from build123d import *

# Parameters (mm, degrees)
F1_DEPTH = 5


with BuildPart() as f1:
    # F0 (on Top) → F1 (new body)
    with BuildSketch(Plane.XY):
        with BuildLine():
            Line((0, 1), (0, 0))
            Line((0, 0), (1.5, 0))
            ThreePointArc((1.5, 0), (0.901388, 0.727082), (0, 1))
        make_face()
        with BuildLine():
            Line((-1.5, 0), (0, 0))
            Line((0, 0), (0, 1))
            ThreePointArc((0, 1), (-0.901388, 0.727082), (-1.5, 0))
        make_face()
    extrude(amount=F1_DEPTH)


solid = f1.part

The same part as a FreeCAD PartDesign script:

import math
import FreeCAD as App
import Part
import Sketcher
from FreeCAD import Vector
Q = App.Units.Quantity

doc = App.newDocument("Part")
body = doc.addObject("PartDesign::Body", "Body")

sketch1 = body.newObject("Sketcher::SketchObject", "Sketch")
sketch1.AttachmentSupport = (doc.getObject("XY_Plane"), [""])
sketch1.MapMode = "FlatFace"
sketch1.addGeometry(Part.ArcOfCircle(Part.Circle(Vector(0, -0.6, 0), Vector(0, 0, 1), 1.6), math.radians(23), math.radians(90)), False)
sketch1.addGeometry(Part.ArcOfCircle(Part.Circle(Vector(0, -0.6, 0), Vector(0, 0, 1), 1.6), math.radians(90), math.radians(157)), False)
sketch1.addGeometry(Part.LineSegment(Vector(-1.5, 0, 0), Vector(1.5, 0, 0)), False)
sketch1.addConstraint(Sketcher.Constraint("Tangent", 0, 2, 1, 1))
sketch1.addConstraint(Sketcher.Constraint("Coincident", 1, 2, 2, 1))
sketch1.addConstraint(Sketcher.Constraint("Coincident", 2, 2, 0, 1))
sketch1.addConstraint(Sketcher.Constraint("Horizontal", 2))
sketch1.addConstraint(Sketcher.Constraint("Equal", 0, 1))
sketch1.addConstraint(Sketcher.Constraint("Symmetric", 1, 2, 2, 2, -1, 1))
sketch1.addConstraint(Sketcher.Constraint("PointOnObject", 0, 2, -2))
sketch1.addConstraint(Sketcher.Constraint("DistanceX", 2, 1, 2, 2, Q("3 mm")))
sketch1.addConstraint(Sketcher.Constraint("DistanceY", -1, 1, 0, 2, Q("1 mm")))
pad1 = body.newObject("PartDesign::Pad", "Pad")
pad1.Profile = sketch1
pad1.Length = 5

doc.recompute()
